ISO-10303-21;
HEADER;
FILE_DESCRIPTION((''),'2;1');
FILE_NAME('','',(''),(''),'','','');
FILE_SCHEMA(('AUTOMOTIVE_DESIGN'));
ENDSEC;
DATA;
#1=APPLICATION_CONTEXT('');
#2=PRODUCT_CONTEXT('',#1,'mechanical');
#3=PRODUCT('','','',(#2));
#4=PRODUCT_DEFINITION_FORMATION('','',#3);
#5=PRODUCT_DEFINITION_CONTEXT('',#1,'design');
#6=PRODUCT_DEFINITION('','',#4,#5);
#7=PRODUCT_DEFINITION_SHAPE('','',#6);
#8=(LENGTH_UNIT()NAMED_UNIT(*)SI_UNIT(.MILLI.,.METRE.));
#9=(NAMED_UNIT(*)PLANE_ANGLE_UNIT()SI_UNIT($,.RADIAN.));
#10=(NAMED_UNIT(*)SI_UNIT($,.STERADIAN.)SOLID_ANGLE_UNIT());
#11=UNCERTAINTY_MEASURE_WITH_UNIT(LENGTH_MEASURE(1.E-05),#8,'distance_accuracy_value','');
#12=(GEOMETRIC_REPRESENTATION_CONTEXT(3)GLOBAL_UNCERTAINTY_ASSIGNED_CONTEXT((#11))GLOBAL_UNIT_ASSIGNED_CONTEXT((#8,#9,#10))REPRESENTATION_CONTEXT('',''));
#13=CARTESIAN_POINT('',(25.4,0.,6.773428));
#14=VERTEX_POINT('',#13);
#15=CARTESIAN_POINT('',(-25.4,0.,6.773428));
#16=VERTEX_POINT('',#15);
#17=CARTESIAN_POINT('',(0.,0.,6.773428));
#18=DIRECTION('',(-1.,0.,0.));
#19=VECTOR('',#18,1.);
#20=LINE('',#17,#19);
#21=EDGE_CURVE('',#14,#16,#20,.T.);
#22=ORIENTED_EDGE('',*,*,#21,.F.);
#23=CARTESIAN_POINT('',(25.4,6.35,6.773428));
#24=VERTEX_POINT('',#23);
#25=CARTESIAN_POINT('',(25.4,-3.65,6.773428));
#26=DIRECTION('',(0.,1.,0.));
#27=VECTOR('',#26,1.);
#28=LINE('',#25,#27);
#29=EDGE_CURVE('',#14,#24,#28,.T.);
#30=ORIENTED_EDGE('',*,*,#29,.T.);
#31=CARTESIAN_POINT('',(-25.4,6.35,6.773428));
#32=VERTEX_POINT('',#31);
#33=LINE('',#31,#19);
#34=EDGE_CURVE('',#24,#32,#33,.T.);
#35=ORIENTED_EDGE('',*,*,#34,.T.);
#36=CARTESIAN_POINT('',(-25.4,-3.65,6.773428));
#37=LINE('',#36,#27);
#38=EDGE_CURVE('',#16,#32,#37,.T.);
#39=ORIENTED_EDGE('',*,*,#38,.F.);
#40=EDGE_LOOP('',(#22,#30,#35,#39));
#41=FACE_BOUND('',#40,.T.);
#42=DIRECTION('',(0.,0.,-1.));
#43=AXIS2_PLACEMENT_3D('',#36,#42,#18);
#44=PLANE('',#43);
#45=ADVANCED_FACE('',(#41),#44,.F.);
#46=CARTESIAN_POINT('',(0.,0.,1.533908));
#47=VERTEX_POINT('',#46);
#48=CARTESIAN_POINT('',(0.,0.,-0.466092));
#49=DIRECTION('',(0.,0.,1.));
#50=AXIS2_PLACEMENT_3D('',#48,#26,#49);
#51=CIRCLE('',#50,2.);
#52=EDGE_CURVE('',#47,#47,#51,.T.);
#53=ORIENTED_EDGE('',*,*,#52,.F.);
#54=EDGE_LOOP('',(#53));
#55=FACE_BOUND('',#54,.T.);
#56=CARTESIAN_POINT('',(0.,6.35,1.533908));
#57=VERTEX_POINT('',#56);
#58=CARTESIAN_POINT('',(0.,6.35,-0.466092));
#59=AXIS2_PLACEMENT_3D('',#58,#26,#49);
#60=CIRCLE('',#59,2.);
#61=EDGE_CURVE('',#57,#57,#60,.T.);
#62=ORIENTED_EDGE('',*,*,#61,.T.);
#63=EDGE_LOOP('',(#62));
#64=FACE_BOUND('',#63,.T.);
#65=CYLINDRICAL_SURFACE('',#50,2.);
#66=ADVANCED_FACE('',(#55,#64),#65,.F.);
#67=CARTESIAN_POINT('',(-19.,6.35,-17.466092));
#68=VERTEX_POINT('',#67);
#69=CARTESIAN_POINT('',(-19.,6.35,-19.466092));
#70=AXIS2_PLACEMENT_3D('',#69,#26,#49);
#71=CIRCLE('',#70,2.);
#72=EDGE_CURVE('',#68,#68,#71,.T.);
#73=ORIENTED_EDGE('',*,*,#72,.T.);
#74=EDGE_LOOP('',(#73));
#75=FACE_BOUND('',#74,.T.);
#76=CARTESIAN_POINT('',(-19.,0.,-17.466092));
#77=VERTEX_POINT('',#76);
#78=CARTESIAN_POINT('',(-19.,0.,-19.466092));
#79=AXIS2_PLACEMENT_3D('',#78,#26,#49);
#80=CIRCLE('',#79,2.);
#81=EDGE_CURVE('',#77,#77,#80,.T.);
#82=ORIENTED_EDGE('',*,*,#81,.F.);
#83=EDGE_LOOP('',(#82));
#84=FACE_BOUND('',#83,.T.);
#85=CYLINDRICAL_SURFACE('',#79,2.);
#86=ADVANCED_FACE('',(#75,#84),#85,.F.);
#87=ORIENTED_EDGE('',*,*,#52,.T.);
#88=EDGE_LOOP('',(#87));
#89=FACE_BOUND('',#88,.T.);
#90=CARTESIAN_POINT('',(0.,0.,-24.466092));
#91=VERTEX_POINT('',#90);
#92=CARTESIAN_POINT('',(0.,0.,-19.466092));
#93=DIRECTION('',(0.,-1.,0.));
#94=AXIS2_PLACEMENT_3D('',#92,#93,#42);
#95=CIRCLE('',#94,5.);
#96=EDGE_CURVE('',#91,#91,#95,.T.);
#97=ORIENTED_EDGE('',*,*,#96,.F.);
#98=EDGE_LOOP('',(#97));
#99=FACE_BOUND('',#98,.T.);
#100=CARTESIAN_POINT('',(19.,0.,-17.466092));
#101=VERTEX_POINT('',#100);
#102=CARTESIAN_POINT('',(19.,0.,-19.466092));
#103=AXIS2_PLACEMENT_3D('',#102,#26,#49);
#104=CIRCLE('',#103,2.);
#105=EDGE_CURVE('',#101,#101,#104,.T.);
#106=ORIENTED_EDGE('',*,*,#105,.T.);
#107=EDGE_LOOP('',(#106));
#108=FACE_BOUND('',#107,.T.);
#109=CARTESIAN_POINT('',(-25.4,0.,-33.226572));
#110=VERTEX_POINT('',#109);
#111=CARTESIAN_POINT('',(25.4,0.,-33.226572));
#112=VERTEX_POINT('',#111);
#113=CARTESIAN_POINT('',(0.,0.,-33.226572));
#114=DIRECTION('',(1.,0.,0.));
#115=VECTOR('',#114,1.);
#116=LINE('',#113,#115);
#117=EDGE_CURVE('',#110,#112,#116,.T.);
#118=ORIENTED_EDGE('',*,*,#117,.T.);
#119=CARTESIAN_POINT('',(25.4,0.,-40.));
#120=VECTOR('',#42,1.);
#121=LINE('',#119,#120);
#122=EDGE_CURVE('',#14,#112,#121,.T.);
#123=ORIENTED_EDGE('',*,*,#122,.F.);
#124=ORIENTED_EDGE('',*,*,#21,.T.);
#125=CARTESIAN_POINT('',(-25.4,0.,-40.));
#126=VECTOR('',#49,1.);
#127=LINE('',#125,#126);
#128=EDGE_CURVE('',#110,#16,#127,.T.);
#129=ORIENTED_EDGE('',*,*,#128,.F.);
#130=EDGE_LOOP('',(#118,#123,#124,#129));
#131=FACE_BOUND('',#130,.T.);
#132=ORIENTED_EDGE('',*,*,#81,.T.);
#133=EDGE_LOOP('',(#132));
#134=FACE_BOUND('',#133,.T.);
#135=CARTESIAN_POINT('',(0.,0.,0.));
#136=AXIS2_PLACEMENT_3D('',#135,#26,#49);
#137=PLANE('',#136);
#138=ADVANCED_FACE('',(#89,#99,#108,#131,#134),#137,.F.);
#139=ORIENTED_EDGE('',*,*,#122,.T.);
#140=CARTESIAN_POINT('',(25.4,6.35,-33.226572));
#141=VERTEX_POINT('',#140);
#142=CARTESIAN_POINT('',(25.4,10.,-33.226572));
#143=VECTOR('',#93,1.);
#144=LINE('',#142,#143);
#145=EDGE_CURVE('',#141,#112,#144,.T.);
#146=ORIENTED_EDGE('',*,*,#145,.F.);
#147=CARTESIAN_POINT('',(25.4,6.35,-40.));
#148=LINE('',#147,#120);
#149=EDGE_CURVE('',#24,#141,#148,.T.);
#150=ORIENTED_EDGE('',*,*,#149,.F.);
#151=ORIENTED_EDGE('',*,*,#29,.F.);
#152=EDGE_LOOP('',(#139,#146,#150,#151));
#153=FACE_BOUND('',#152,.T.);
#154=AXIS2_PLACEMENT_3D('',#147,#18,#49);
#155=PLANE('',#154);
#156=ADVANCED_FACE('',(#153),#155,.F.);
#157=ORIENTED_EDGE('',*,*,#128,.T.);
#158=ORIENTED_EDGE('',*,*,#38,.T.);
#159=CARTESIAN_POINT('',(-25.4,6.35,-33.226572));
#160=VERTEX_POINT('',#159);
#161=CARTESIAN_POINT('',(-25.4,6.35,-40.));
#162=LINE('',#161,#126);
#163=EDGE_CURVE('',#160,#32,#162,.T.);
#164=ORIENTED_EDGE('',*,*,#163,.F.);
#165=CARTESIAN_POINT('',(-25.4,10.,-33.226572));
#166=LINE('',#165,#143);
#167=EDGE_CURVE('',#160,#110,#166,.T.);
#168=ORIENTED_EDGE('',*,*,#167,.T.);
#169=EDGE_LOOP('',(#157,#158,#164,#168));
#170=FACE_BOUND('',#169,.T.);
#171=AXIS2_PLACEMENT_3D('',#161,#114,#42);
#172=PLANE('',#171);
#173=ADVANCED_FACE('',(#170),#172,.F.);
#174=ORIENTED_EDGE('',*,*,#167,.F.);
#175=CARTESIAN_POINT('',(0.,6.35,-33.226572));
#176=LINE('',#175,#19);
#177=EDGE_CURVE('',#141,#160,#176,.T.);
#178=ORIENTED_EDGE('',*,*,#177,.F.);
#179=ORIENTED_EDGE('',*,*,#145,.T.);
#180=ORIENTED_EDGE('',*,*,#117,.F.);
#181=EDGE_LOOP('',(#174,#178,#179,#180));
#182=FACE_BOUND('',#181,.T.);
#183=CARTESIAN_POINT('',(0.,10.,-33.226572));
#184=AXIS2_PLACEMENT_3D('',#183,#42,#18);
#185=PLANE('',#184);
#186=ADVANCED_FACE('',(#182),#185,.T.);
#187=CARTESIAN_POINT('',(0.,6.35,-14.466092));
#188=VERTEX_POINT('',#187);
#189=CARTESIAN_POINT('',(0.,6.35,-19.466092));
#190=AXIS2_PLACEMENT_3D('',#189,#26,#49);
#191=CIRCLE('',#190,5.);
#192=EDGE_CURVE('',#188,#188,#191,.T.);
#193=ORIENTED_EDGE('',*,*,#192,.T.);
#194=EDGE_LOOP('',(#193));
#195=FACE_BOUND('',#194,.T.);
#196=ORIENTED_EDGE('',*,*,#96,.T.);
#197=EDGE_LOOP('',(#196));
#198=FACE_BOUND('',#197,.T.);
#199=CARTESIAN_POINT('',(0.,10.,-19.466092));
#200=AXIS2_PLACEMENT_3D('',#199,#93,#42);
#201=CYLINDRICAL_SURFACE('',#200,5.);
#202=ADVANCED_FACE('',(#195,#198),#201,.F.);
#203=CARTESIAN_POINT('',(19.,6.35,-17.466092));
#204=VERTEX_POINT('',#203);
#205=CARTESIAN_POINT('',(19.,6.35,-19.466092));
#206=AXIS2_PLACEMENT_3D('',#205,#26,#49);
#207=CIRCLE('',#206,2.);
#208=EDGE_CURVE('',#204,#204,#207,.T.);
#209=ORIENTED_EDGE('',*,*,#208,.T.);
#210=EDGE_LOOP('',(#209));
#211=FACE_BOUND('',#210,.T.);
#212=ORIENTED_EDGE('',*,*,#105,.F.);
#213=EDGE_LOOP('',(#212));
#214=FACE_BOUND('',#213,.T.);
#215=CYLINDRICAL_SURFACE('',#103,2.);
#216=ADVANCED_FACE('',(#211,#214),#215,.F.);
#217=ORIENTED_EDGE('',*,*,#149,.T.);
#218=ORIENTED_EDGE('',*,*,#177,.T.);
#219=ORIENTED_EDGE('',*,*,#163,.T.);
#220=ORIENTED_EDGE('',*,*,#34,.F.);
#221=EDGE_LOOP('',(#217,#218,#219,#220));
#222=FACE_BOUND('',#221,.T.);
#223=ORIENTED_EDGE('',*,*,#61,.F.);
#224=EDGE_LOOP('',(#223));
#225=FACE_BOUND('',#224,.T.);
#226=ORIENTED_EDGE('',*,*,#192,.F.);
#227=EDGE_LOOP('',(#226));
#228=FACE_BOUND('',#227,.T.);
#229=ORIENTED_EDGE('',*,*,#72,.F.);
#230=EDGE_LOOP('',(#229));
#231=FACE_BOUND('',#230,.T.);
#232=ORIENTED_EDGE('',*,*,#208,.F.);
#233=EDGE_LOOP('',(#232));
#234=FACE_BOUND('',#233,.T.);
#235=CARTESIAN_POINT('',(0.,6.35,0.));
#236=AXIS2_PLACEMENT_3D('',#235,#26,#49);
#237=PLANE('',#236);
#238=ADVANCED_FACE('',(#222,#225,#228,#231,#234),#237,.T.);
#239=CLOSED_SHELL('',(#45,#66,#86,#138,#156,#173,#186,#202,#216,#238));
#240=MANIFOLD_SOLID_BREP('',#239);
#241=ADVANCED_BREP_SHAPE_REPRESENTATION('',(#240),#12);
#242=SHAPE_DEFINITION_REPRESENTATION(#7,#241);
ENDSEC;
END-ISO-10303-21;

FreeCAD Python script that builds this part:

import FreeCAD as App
import Part
import Sketcher

V = App.Vector
Q = App.Units.Quantity

doc = App.newDocument("Part")
params = doc.addObject("Spreadsheet::Sheet", "Params")
for row, (alias, value) in enumerate([
    ("sketch1_height", "80 mm"),
    ("sketch1_width", "50.8 mm"),
    ("pad1_length", "6.35 mm"),
    ("sketch2_diameter", "4 mm"),
    ("sketch3_width", "50.8 mm"),
    ("sketch3_height", "12.7 mm"),
    ("sketch4_width", "50.8 mm"),
    ("pocket3_length", "10 mm"),
    ("sketch5_width", "50.8 mm"),
    ("pocket4_length", "10 mm"),
    ("sketch6_diameter", "10 mm"),
    ("pocket5_length", "10 mm"),
], start=1):
    params.set(f"A{row}", alias)
    params.set(f"B{row}", "=" + value)
    params.setAlias(f"B{row}", alias)

body = doc.addObject("PartDesign::Body", "Body")

sketch1 = doc.addObject("Sketcher::SketchObject", "Sketch")
body.addObject(sketch1)
sketch1.AttachmentSupport = (doc.XZ_Plane, [""])
sketch1.MapMode = "FlatFace"
sketch1.addGeometry([
    Part.LineSegment(V(-25, -40, 0), V(-25, 40, 0)),
    Part.LineSegment(V(-25, 40, 0), V(25, 40, 0)),
    Part.LineSegment(V(25, 40, 0), V(25, -40, 0)),
    Part.LineSegment(V(25, -40, 0), V(-25, -40, 0)),
], False)
sketch1.addConstraint([
    Sketcher.Constraint("Coincident", 0, 2, 1, 1),
    Sketcher.Constraint("Coincident", 1, 2, 2, 1),
    Sketcher.Constraint("Coincident", 2, 2, 3, 1),
    Sketcher.Constraint("Coincident", 3, 2, 0, 1),
    Sketcher.Constraint("Vertical", 0),
    Sketcher.Constraint("Horizontal", 1),
    Sketcher.Constraint("Vertical", 2),
    Sketcher.Constraint("Horizontal", 3),
    Sketcher.Constraint("Symmetric", 0, 2, 2, 2, -1, 1),
    Sketcher.Constraint("DistanceY", 0, 1, 0, 2, Q("80 mm")),
    Sketcher.Constraint("DistanceX", 1, 1, 1, 2, Q("50.8 mm")),
])
sketch1.setExpression("Constraints[9]", "Params.sketch1_height")
sketch1.setExpression("Constraints[10]", "Params.sketch1_width")
pad1 = doc.addObject("PartDesign::Pad", "Pad")
body.addObject(pad1)
pad1.Profile = sketch1
pad1.setExpression("Length", "Params.pad1_length")
pad1.Reversed = True

sketch2 = doc.addObject("Sketcher::SketchObject", "Sketch001")
body.addObject(sketch2)
sketch2.AttachmentSupport = (doc.XZ_Plane, [""])
sketch2.MapMode = "FlatFace"
sketch2.AttachmentOffset = App.Placement(V(0, 0, -6.35), App.Rotation())
sketch2.addGeometry([
    Part.Circle(V(-19, -19.5, 0), V(0, 0, 1), 2),
    Part.Circle(V(19, -19.5, 0), V(0, 0, 1), 2),
    Part.Circle(V(0, -0.5, 0), V(0, 0, 1), 2),
], False)
sketch2.addConstraint([
    Sketcher.Constraint("Equal", 0, 1),
    Sketcher.Constraint("Equal", 1, 2),
    Sketcher.Constraint("Symmetric", 0, 3, 1, 3, -2),
    Sketcher.Constraint("PointOnObject", 2, 3, -2),
    Sketcher.Constraint("Diameter", 0, Q("4 mm")),
    Sketcher.Constraint("DistanceX", 0, 3, -1, 1, Q("19 mm")),
    Sketcher.Constraint("DistanceY", 0, 3, 2, 3, Q("19 mm")),
    Sketcher.Constraint("DistanceY", 0, 3, -1, 1, Q("19.466092 mm")),
])
sketch2.setExpression("Constraints[4]", "Params.sketch2_diameter")
pocket1 = doc.addObject("PartDesign::Pocket", "Pocket")
body.addObject(pocket1)
pocket1.Profile = sketch2
pocket1.Type = "ThroughAll"
pocket1.Reversed = True

sketch3 = doc.addObject("Sketcher::SketchObject", "Sketch002")
body.addObject(sketch3)
sketch3.AttachmentSupport = (doc.XZ_Plane, [""])
sketch3.MapMode = "FlatFace"
sketch3.AttachmentOffset = App.Placement(V(0, 0, -6.35), App.Rotation())
sketch3.addGeometry([
    Part.LineSegment(V(-25, 27, 0), V(-25, 40, 0)),
    Part.LineSegment(V(-25, 40, 0), V(25, 40, 0)),
    Part.LineSegment(V(25, 40, 0), V(25, 27, 0)),
    Part.LineSegment(V(25, 27, 0), V(-25, 27, 0)),
], False)
sketch3.addConstraint([
    Sketcher.Constraint("Coincident", 0, 2, 1, 1),
    Sketcher.Constraint("Coincident", 1, 2, 2, 1),
    Sketcher.Constraint("Coincident", 2, 2, 3, 1),
    Sketcher.Constraint("Coincident", 3, 2, 0, 1),
    Sketcher.Constraint("Vertical", 0),
    Sketcher.Constraint("Horizontal", 1),
    Sketcher.Constraint("Vertical", 2),
    Sketcher.Constraint("Horizontal", 3),
    Sketcher.Constraint("DistanceX", 1, 1, 1, 2, Q("50.8 mm")),
    Sketcher.Constraint("DistanceY", 0, 1, 0, 2, Q("12.7 mm")),
    Sketcher.Constraint("DistanceY", -1, 1, 0, 2, Q("40 mm")),
    Sketcher.Constraint("DistanceX", 0, 2, -1, 1, Q("25.4 mm")),
])
sketch3.setExpression("Constraints[8]", "Params.sketch3_width")
sketch3.setExpression("Constraints[9]", "Params.sketch3_height")
pocket2 = doc.addObject("PartDesign::Pocket", "Pocket001")
body.addObject(pocket2)
pocket2.Profile = sketch3
pocket2.Type = "ThroughAll"
pocket2.Reversed = True

sketch4 = doc.addObject("Sketcher::SketchObject", "Sketch003")
body.addObject(sketch4)
sketch4.AttachmentSupport = (doc.XZ_Plane, [""])
sketch4.MapMode = "FlatFace"
sketch4.AttachmentOffset = App.Placement(V(0, 0, -6.35), App.Rotation())
sketch4.addGeometry([
    Part.LineSegment(V(-25, 7, 0), V(-25, 27, 0)),
    Part.LineSegment(V(-25, 27, 0), V(25, 27, 0)),
    Part.LineSegment(V(25, 27, 0), V(25, 7, 0)),
    Part.LineSegment(V(25, 7, 0), V(-25, 7, 0)),
], False)
sketch4.addConstraint([
    Sketcher.Constraint("Coincident", 0, 2, 1, 1),
    Sketcher.Constraint("Coincident", 1, 2, 2, 1),
    Sketcher.Constraint("Coincident", 2, 2, 3, 1),
    Sketcher.Constraint("Coincident", 3, 2, 0, 1),
    Sketcher.Constraint("Vertical", 0),
    Sketcher.Constraint("Horizontal", 1),
    Sketcher.Constraint("Vertical", 2),
    Sketcher.Constraint("Horizontal", 3),
    Sketcher.Constraint("DistanceX", 1, 1, 1, 2, Q("50.8 mm")),
    Sketcher.Constraint("DistanceX", 0, 2, -1, 1, Q("25.4 mm")),
    Sketcher.Constraint("DistanceY", -1, 1, 0, 2, Q("27.3 mm")),
    Sketcher.Constraint("DistanceY", 0, 1, 0, 2, Q("20.526572 mm")),
])
sketch4.setExpression("Constraints[8]", "Params.sketch4_width")
pocket3 = doc.addObject("PartDesign::Pocket", "Pocket002")
body.addObject(pocket3)
pocket3.Profile = sketch4
pocket3.setExpression("Length", "Params.pocket3_length")
pocket3.Reversed = True

sketch5 = doc.addObject("Sketcher::SketchObject", "Sketch004")
body.addObject(sketch5)
sketch5.AttachmentSupport = (doc.XZ_Plane, [""])
sketch5.MapMode = "FlatFace"
sketch5.addGeometry([
    Part.LineSegment(V(-25, -33, 0), V(-25, -40, 0)),
    Part.LineSegment(V(-25, -40, 0), V(25, -40, 0)),
    Part.LineSegment(V(25, -40, 0), V(25, -33, 0)),
    Part.LineSegment(V(25, -33, 0), V(-25, -33, 0)),
], False)
sketch5.addConstraint([
    Sketcher.Constraint("Coincident", 0, 2, 1, 1),
    Sketcher.Constraint("Coincident", 1, 2, 2, 1),
    Sketcher.Constraint("Coincident", 2, 2, 3, 1),
    Sketcher.Constraint("Coincident", 3, 2, 0, 1),
    Sketcher.Constraint("Vertical", 0),
    Sketcher.Constraint("Horizontal", 1),
    Sketcher.Constraint("Vertical", 2),
    Sketcher.Constraint("Horizontal", 3),
    Sketcher.Constraint("DistanceX", 1, 1, 1, 2, Q("50.8 mm")),
    Sketcher.Constraint("DistanceY", 0, 2, -1, 1, Q("40 mm")),
    Sketcher.Constraint("DistanceX", 0, 2, -1, 1, Q("25.4 mm")),
    Sketcher.Constraint("DistanceY", 0, 2, 0, 1, Q("6.773428 mm")),
])
sketch5.setExpression("Constraints[8]", "Params.sketch5_width")
pocket4 = doc.addObject("PartDesign::Pocket", "Pocket003")
body.addObject(pocket4)
pocket4.Profile = sketch5
pocket4.setExpression("Length", "Params.pocket4_length")

sketch6 = doc.addObject("Sketcher::SketchObject", "Sketch005")
body.addObject(sketch6)
sketch6.AttachmentSupport = (doc.XZ_Plane, [""])
sketch6.MapMode = "FlatFace"
sketch6.addGeometry(Part.Circle(V(0, -19, 0), V(0, 0, 1), 5), False)
sketch6.addConstraint([
    Sketcher.Constraint("PointOnObject", 0, 3, -2),
    Sketcher.Constraint("Diameter", 0, Q("10 mm")),
    Sketcher.Constraint("DistanceY", 0, 3, -1, 1, Q("19.466092 mm")),
])
sketch6.setExpression("Constraints[1]", "Params.sketch6_diameter")
pocket5 = doc.addObject("PartDesign::Pocket", "Pocket004")
body.addObject(pocket5)
pocket5.Profile = sketch6
pocket5.setExpression("Length", "Params.pocket5_length")

doc.recompute()
